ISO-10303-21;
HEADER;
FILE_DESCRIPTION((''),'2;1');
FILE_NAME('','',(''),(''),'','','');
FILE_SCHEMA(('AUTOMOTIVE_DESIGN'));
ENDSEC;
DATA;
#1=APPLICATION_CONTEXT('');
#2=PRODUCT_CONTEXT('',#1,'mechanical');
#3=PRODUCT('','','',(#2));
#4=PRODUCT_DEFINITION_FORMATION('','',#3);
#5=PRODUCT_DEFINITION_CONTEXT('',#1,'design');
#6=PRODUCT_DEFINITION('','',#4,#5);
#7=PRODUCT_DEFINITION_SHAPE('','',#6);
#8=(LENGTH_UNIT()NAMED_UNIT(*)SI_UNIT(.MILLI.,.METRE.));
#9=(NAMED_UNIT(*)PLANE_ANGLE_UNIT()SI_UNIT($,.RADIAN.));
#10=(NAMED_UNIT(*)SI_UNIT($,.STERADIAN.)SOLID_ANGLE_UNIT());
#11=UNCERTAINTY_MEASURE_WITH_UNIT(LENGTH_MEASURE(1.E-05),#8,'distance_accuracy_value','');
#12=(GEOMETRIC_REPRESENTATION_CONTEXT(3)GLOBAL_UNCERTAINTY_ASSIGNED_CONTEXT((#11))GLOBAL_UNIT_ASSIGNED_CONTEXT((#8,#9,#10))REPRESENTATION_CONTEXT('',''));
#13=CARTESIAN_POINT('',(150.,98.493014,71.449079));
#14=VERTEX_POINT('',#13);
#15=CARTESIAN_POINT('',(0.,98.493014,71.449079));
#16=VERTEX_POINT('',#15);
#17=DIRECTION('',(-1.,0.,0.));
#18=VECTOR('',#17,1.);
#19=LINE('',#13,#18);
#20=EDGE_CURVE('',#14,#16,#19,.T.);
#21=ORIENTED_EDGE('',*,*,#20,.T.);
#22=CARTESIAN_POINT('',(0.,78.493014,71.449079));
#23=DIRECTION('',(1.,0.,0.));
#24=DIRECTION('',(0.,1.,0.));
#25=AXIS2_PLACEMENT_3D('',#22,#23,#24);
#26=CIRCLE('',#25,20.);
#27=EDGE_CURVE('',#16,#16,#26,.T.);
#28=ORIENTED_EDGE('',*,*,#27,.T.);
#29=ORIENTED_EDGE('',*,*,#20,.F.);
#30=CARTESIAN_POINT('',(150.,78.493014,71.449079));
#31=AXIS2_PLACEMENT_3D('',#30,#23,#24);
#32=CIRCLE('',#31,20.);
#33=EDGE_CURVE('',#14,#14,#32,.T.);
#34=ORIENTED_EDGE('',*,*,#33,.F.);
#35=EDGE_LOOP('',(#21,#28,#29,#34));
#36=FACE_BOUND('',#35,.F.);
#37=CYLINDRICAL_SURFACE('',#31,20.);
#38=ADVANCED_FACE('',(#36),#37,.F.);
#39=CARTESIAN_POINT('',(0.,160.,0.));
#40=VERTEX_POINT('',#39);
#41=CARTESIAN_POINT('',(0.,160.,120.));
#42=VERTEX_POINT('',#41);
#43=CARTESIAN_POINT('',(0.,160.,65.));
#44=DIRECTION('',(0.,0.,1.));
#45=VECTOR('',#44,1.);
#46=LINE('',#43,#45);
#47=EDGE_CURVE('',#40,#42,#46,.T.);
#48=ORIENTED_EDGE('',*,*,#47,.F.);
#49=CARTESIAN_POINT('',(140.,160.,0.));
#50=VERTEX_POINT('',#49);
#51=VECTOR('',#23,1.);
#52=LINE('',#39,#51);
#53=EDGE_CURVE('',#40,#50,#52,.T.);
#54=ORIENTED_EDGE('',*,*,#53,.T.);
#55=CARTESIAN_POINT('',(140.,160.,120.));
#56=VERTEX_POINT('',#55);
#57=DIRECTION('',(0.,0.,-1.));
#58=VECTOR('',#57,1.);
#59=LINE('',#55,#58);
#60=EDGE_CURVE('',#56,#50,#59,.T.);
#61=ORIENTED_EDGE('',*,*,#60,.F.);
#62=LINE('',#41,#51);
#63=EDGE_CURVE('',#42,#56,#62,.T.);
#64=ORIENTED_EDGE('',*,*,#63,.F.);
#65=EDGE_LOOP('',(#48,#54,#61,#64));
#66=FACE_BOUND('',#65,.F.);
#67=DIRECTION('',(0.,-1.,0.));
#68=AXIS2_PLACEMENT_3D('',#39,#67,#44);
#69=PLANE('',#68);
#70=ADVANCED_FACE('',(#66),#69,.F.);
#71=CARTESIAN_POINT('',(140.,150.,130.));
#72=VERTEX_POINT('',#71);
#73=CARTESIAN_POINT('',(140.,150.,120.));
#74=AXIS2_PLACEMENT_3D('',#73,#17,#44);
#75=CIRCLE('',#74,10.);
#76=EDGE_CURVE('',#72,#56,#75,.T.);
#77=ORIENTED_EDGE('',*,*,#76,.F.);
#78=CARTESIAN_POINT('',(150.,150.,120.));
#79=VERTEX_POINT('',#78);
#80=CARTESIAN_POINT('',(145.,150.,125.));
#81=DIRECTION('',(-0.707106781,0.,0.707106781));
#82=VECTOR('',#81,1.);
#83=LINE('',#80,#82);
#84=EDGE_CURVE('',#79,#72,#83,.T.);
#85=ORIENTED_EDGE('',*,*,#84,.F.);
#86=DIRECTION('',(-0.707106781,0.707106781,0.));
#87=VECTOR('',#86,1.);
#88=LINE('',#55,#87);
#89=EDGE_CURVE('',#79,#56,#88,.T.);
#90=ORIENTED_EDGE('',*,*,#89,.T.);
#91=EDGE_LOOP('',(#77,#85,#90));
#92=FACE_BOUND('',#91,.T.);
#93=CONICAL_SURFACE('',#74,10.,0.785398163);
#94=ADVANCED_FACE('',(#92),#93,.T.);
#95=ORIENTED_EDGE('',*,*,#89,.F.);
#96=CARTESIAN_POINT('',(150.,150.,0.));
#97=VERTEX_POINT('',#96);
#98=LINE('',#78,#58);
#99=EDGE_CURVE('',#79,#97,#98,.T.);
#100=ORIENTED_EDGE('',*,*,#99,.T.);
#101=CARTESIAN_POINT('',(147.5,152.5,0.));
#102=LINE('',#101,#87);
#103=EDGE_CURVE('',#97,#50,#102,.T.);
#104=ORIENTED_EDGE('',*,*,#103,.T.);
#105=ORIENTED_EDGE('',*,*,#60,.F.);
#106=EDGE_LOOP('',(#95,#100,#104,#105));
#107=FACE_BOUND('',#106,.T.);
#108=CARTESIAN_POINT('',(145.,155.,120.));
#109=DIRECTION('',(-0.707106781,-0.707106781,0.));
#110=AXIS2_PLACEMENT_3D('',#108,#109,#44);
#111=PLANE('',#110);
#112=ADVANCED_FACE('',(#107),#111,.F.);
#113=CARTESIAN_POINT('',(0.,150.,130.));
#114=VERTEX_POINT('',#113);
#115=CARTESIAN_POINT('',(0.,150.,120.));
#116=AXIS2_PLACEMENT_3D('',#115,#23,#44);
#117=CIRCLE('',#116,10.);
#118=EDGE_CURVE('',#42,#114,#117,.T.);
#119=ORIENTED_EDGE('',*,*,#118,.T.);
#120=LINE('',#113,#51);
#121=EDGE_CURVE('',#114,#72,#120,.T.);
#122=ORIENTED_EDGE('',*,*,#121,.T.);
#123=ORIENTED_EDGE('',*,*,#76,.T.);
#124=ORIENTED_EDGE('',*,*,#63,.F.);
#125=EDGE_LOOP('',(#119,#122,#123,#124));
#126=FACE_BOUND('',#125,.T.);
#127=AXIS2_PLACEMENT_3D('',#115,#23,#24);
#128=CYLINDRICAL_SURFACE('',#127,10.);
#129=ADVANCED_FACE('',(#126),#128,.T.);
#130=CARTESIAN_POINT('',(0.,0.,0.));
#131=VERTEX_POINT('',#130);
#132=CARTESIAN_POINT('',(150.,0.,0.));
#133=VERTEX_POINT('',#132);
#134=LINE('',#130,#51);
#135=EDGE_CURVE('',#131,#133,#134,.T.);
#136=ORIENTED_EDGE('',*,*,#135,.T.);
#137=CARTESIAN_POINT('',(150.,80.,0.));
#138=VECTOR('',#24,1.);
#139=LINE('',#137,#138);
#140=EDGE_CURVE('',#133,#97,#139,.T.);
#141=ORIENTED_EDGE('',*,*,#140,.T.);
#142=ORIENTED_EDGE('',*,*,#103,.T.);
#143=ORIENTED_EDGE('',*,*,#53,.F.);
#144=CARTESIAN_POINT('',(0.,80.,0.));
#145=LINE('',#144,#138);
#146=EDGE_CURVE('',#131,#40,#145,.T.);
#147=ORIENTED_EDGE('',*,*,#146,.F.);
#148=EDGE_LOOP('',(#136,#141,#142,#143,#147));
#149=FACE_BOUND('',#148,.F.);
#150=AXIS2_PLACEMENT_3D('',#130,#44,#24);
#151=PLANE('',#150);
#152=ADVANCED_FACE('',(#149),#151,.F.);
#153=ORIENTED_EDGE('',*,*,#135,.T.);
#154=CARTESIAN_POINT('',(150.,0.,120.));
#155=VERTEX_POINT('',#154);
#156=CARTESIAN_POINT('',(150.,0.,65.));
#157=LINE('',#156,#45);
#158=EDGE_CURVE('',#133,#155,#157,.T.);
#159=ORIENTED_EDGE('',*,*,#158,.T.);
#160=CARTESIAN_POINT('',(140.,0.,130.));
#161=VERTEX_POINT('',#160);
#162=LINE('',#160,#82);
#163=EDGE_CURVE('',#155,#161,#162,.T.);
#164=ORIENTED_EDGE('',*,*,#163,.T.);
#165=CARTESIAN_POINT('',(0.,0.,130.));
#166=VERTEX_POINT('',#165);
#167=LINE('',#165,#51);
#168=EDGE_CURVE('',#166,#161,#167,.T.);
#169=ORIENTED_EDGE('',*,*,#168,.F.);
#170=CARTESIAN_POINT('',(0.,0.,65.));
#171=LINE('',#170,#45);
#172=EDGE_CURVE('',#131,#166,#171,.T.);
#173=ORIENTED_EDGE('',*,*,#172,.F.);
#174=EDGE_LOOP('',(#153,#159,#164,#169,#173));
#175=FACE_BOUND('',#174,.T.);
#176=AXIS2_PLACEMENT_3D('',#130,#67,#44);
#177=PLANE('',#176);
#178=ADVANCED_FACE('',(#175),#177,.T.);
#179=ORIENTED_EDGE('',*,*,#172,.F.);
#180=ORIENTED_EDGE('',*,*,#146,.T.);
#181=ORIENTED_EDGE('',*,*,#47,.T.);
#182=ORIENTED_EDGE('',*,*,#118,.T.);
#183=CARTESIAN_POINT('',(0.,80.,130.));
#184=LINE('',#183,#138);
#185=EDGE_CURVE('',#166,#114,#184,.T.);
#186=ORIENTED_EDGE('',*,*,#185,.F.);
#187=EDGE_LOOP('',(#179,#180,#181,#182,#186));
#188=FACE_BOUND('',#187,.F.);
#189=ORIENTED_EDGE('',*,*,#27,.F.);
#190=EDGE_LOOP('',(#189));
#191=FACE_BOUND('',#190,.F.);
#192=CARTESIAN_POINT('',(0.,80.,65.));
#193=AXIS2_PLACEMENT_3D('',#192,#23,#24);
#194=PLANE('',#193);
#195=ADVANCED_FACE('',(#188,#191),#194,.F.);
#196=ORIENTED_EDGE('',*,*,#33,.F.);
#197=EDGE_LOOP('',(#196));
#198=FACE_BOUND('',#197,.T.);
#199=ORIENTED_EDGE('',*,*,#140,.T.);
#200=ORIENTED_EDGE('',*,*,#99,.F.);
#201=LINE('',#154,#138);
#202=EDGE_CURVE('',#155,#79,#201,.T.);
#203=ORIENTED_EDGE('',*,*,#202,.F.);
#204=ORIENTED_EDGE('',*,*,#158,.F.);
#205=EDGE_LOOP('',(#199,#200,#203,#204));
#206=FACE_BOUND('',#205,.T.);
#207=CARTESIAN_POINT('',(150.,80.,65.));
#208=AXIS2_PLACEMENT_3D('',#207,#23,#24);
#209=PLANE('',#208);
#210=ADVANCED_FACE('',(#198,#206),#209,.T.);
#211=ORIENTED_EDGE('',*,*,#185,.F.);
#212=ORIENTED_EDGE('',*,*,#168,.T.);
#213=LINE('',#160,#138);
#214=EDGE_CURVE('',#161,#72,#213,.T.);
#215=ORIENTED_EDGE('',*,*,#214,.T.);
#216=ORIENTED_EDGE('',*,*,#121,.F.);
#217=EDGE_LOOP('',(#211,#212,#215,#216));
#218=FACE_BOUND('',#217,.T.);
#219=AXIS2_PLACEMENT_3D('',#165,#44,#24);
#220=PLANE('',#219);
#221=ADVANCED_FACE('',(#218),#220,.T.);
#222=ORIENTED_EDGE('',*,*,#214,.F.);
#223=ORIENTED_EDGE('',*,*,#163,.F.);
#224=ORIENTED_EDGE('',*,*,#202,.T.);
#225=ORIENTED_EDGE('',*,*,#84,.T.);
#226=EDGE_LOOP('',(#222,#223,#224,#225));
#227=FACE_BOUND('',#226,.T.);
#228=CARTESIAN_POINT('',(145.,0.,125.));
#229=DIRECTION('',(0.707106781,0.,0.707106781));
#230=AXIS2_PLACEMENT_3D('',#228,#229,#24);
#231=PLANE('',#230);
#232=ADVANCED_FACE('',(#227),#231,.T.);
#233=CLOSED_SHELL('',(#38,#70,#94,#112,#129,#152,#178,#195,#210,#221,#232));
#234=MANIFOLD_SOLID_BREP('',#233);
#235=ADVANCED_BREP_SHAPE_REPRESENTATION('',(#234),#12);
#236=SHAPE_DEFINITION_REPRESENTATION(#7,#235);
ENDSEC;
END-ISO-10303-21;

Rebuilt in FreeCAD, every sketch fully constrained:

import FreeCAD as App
import Part
import Sketcher
from FreeCAD import Vector
Q = App.Units.Quantity


def edges_at(feature, points):
    """Names of the edges that pass closest to the given points."""
    edges = feature.Shape.Edges
    near = lambda p: min(range(len(edges)), key=lambda i: edges[i].distToShape(Part.Vertex(*p))[0])
    return sorted({f"Edge{near(p) + 1}" for p in points})

doc = App.newDocument("Part")
body = doc.addObject("PartDesign::Body", "Body")

# Sketch on YZ plane
sketch1 = body.newObject("Sketcher::SketchObject", "Sketch")
sketch1.AttachmentSupport = (doc.getObject("YZ_Plane"), [""])
sketch1.MapMode = "FlatFace"
sketch1.addGeometry(Part.LineSegment(Vector(0, 130, 0), Vector(0, 0, 0)), False)
sketch1.addGeometry(Part.LineSegment(Vector(0, 0, 0), Vector(160, 0, 0)), False)
sketch1.addGeometry(Part.LineSegment(Vector(160, 0, 0), Vector(160, 130, 0)), False)
sketch1.addGeometry(Part.LineSegment(Vector(160, 130, 0), Vector(0, 130, 0)), False)
sketch1.addConstraint(Sketcher.Constraint("Coincident", 0, 2, 1, 1))
sketch1.addConstraint(Sketcher.Constraint("Coincident", 1, 2, 2, 1))
sketch1.addConstraint(Sketcher.Constraint("Coincident", 2, 2, 3, 1))
sketch1.addConstraint(Sketcher.Constraint("Coincident", 3, 2, 0, 1))
sketch1.addConstraint(Sketcher.Constraint("Vertical", 0))
sketch1.addConstraint(Sketcher.Constraint("Horizontal", 1))
sketch1.addConstraint(Sketcher.Constraint("Vertical", 2))
sketch1.addConstraint(Sketcher.Constraint("Horizontal", 3))
sketch1.addConstraint(Sketcher.Constraint("Coincident", 0, 2, -1, 1))
sketch1.addConstraint(Sketcher.Constraint("DistanceX", 1, 1, 1, 2, Q("160 mm")))
sketch1.addConstraint(Sketcher.Constraint("DistanceY", 0, 2, 0, 1, Q("130 mm")))
pad1 = body.newObject("PartDesign::Pad", "Pad")
pad1.Profile = sketch1
pad1.Length = 150
doc.recompute()

fillet = body.newObject("PartDesign::Fillet", "Fillet")
fillet.Base = (pad1, edges_at(pad1, [(75, 160, 130)]))
fillet.Radius = 10
doc.recompute()

chamfer = body.newObject("PartDesign::Chamfer", "Chamfer")
chamfer.Base = (fillet, edges_at(fillet, [(150, 75, 130), (150, 160, 60), (150, 157.071, 127.071)]))
chamfer.Size = 10

# Sketch on YZ plane
sketch2 = body.newObject("Sketcher::SketchObject", "Sketch001")
sketch2.AttachmentSupport = (doc.getObject("YZ_Plane"), [""])
sketch2.MapMode = "FlatFace"
sketch2.AttachmentOffset = App.Placement(Vector(0, 0, 150), App.Rotation())
sketch2.addGeometry(Part.Circle(Vector(78.493014, 71.449079, 0), Vector(0, 0, 1), 20), False)
sketch2.addConstraint(Sketcher.Constraint("Diameter", 0, Q("40 mm")))
sketch2.addConstraint(Sketcher.Constraint("DistanceY", -1, 1, 0, 3, Q("71.449079 mm")))
sketch2.addConstraint(Sketcher.Constraint("DistanceX", -1, 1, 0, 3, Q("78.493014 mm")))
pocket1 = body.newObject("PartDesign::Pocket", "Pocket")
pocket1.Profile = sketch2
pocket1.Length = 265

doc.recompute()
